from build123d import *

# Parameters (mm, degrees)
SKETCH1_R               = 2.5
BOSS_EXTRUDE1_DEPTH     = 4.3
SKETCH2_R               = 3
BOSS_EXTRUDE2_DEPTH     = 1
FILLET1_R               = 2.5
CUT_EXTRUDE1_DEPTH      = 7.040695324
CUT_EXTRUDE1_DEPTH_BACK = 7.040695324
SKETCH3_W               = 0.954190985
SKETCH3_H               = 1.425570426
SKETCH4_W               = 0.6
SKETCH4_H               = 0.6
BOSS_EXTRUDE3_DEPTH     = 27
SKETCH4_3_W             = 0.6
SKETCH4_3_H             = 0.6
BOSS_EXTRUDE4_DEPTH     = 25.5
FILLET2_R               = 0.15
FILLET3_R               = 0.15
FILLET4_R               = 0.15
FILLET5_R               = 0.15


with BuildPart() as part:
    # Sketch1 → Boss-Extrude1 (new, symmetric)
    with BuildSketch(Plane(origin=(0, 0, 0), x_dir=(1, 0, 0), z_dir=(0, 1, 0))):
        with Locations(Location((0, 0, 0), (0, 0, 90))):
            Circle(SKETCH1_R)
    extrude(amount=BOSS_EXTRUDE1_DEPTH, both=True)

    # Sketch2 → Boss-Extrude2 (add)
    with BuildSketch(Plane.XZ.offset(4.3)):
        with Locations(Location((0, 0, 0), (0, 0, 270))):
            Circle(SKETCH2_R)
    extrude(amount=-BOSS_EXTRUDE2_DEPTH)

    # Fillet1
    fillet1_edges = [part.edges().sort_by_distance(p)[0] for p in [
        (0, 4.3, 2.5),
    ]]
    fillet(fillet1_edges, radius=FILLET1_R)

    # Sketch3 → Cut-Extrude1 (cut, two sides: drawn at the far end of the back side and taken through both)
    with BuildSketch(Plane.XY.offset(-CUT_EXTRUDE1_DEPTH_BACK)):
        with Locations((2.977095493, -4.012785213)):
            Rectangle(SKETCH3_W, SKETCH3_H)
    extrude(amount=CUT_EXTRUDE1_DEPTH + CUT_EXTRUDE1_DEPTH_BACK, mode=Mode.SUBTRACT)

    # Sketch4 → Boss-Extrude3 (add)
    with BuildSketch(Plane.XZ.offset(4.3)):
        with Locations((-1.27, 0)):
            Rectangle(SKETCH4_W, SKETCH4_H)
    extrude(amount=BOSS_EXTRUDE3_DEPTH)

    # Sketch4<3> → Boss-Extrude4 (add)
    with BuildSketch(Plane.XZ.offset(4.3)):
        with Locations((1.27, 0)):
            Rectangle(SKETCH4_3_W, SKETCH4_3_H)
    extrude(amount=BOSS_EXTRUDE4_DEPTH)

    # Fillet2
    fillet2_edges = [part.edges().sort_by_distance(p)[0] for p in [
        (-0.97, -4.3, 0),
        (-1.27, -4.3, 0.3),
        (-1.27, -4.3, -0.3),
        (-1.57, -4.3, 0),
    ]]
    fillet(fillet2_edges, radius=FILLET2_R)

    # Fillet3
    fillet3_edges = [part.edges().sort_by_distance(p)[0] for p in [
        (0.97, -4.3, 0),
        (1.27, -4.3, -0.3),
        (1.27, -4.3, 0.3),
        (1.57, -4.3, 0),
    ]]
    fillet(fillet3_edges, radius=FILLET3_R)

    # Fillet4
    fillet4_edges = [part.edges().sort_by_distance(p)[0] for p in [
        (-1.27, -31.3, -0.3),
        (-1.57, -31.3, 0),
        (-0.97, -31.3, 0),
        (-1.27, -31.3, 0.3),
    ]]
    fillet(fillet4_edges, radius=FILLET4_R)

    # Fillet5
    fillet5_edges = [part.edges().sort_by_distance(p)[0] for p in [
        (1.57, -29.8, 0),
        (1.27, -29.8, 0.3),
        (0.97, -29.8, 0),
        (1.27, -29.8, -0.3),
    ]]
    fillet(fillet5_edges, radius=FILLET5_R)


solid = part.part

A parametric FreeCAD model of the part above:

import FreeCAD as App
import Part
import Sketcher
Q = App.Units.Quantity


def edges_at(feature, points):
    """Names of the edges that pass closest to the given points."""
    edges = feature.Shape.Edges
    near = lambda p: min(range(len(edges)), key=lambda i: edges[i].distToShape(Part.Vertex(*p))[0])
    return sorted({f"Edge{near(p) + 1}" for p in points})


def add_polygon(sketch, points):
    """Adds a closed chain of lines whose ends are joined by coincident constraints."""
    first, n = sketch.GeometryCount, len(points)
    for a, b in zip(points, points[1:] + points[:1]):
        sketch.addGeometry(Part.LineSegment(App.Vector(*a, 0), App.Vector(*b, 0)), False)
    for i in range(n):
        sketch.addConstraint(Sketcher.Constraint("Coincident", first + i, 2, first + (i + 1) % n, 1))

doc = App.newDocument("Part")
body = doc.addObject("PartDesign::Body", "Body")

# Sketch on XZ plane
sketch1 = body.newObject("Sketcher::SketchObject", "Sketch")
sketch1.AttachmentSupport = (doc.getObject("XZ_Plane"), [""])
sketch1.MapMode = "FlatFace"
sketch1.addGeometry(Part.Circle(App.Vector(0, 0, 0), App.Vector(0, 0, 1), 2.5), False)
sketch1.addConstraint([
    Sketcher.Constraint("Coincident", 0, 3, -1, 1),
    Sketcher.Constraint("Diameter", 0, Q("5 mm")),
])
pad1 = body.newObject("PartDesign::Pad", "Pad")
pad1.Profile = sketch1
pad1.Length = 8.6
pad1.Midplane = True

# Sketch on XZ plane
sketch2 = body.newObject("Sketcher::SketchObject", "Sketch001")
sketch2.AttachmentSupport = (doc.getObject("XZ_Plane"), [""])
sketch2.MapMode = "FlatFace"
sketch2.AttachmentOffset = App.Placement(App.Vector(0, 0, 4.3), App.Rotation())
sketch2.addGeometry(Part.Circle(App.Vector(0, 0, 0), App.Vector(0, 0, 1), 3), False)
sketch2.addConstraint([
    Sketcher.Constraint("Coincident", 0, 3, -1, 1),
    Sketcher.Constraint("Diameter", 0, Q("6 mm")),
])
pad2 = body.newObject("PartDesign::Pad", "Pad001")
pad2.Profile = sketch2
pad2.Length = 1
pad2.Reversed = True
doc.recompute()

fillet = body.newObject("PartDesign::Fillet", "Fillet")
fillet.Base = (pad2, edges_at(pad2, [(0, 4.3, 2.5)]))
fillet.Radius = 2.5

# Sketch on XY plane
sketch3 = body.newObject("Sketcher::SketchObject", "Sketch002")
sketch3.AttachmentSupport = (doc.getObject("XY_Plane"), [""])
sketch3.MapMode = "FlatFace"
add_polygon(sketch3, [(2.5, -3.3), (2.5, -4.7), (3.5, -4.7), (3.5, -3.3)])  # lines 0-3
sketch3.addConstraint([
    Sketcher.Constraint("Vertical", 0),
    Sketcher.Constraint("Horizontal", 1),
    Sketcher.Constraint("Vertical", 2),
    Sketcher.Constraint("Horizontal", 3),
    Sketcher.Constraint("DistanceX", -1, 1, 0, 2, Q("2.5 mm")),
    Sketcher.Constraint("DistanceY", 2, 2, -1, 1, Q("3.3 mm")),
    Sketcher.Constraint("DistanceX", 1, 1, 1, 2, Q("0.954191 mm")),
    Sketcher.Constraint("DistanceY", 0, 2, 0, 1, Q("1.42557 mm")),
])
pocket1 = body.newObject("PartDesign::Pocket", "Pocket")
pocket1.Profile = sketch3
pocket1.Type = "ThroughAll"
pocket1.Midplane = True

# Sketch on XZ plane
sketch4 = body.newObject("Sketcher::SketchObject", "Sketch003")
sketch4.AttachmentSupport = (doc.getObject("XZ_Plane"), [""])
sketch4.MapMode = "FlatFace"
sketch4.AttachmentOffset = App.Placement(App.Vector(0, 0, 4.3), App.Rotation())
add_polygon(sketch4, [(-1.6, 0.3), (-1.6, -0.3), (-1, -0.3), (-1, 0.3)])  # lines 0-3
sketch4.addConstraint([
    Sketcher.Constraint("Vertical", 0),
    Sketcher.Constraint("Horizontal", 1),
    Sketcher.Constraint("Vertical", 2),
    Sketcher.Constraint("Horizontal", 3),
    Sketcher.Constraint("Equal", 3, 0),
    Sketcher.Constraint("DistanceX", 1, 1, 1, 2, Q("0.6 mm")),
    Sketcher.Constraint("DistanceY", 0, 2, -1, 1, Q("0.3 mm")),
    Sketcher.Constraint("DistanceX", 0, 2, -1, 1, Q("1.57 mm")),
])
pad3 = body.newObject("PartDesign::Pad", "Pad002")
pad3.Profile = sketch4
pad3.Length = 27

# Sketch on XZ plane
sketch5 = body.newObject("Sketcher::SketchObject", "Sketch004")
sketch5.AttachmentSupport = (doc.getObject("XZ_Plane"), [""])
sketch5.MapMode = "FlatFace"
sketch5.AttachmentOffset = App.Placement(App.Vector(0, 0, 4.3), App.Rotation())
add_polygon(sketch5, [(1, 0.3), (1, -0.3), (1.6, -0.3), (1.6, 0.3)])  # lines 0-3
sketch5.addConstraint([
    Sketcher.Constraint("Vertical", 0),
    Sketcher.Constraint("Horizontal", 1),
    Sketcher.Constraint("Vertical", 2),
    Sketcher.Constraint("Horizontal", 3),
    Sketcher.Constraint("Equal", 3, 0),
    Sketcher.Constraint("DistanceX", 1, 1, 1, 2, Q("0.6 mm")),
    Sketcher.Constraint("DistanceY", 0, 2, -1, 1, Q("0.3 mm")),
    Sketcher.Constraint("DistanceX", -1, 1, 0, 2, Q("0.97 mm")),
])
pad4 = body.newObject("PartDesign::Pad", "Pad003")
pad4.Profile = sketch5
pad4.Length = 25.5
doc.recompute()

fillet2 = body.newObject("PartDesign::Fillet", "Fillet001")
fillet2.Base = (pad4, edges_at(pad4, [
    (-0.97, -4.3, 0),
    (-1.27, -4.3, 0.3),
    (-1.27, -4.3, -0.3),
    (-1.57, -4.3, 0),
]))
fillet2.Radius = 0.15
doc.recompute()

fillet3 = body.newObject("PartDesign::Fillet", "Fillet002")
fillet3.Base = (fillet2, edges_at(fillet2, [
    (0.97, -4.3, 0),
    (1.27, -4.3, -0.3),
    (1.27, -4.3, 0.3),
    (1.57, -4.3, 0),
]))
fillet3.Radius = 0.15
doc.recompute()

fillet4 = body.newObject("PartDesign::Fillet", "Fillet003")
fillet4.Base = (fillet3, edges_at(fillet3, [
    (-1.27, -31.3, -0.3),
    (-1.57, -31.3, 0),
    (-0.97, -31.3, 0),
    (-1.27, -31.3, 0.3),
]))
fillet4.Radius = 0.15
doc.recompute()

fillet5 = body.newObject("PartDesign::Fillet", "Fillet004")
fillet5.Base = (fillet4, edges_at(fillet4, [
    (1.57, -29.8, 0),
    (1.27, -29.8, 0.3),
    (0.97, -29.8, 0),
    (1.27, -29.8, -0.3),
]))
fillet5.Radius = 0.15

doc.recompute()
